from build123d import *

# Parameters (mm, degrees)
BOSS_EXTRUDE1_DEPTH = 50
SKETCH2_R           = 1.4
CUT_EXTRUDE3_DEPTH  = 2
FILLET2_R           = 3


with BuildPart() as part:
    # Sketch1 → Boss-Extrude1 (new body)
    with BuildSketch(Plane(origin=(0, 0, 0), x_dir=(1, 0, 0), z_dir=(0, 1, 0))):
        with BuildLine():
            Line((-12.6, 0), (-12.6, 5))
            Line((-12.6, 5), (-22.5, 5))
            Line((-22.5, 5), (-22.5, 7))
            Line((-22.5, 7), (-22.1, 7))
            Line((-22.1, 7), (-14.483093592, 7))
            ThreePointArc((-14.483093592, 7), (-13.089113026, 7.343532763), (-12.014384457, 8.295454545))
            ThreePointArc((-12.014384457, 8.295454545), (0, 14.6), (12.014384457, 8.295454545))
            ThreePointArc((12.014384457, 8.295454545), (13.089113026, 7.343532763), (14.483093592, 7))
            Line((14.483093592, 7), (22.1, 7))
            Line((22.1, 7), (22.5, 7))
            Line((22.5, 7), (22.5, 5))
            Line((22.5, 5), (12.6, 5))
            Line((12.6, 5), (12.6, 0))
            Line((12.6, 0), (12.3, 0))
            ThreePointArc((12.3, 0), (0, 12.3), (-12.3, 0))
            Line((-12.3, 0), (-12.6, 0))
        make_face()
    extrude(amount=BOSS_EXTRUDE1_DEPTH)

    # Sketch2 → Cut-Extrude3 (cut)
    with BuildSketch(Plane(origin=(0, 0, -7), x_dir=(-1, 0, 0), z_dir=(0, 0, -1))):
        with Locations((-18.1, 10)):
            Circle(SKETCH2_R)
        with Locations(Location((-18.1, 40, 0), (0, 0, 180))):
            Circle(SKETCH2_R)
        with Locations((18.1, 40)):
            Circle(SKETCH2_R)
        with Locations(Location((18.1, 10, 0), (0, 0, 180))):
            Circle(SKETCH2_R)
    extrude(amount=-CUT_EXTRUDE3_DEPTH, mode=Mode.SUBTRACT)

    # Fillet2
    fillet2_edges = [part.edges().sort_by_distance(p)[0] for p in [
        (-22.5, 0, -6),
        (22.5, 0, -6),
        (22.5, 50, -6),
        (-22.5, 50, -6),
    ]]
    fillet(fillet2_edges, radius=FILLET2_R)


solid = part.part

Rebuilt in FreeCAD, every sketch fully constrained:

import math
import FreeCAD as App
import Part
import Sketcher
Q = App.Units.Quantity


def edges_at(feature, points):
    """Names of the edges that pass closest to the given points."""
    edges = feature.Shape.Edges
    near = lambda p: min(range(len(edges)), key=lambda i: edges[i].distToShape(Part.Vertex(*p))[0])
    return sorted({f"Edge{near(p) + 1}" for p in points})

doc = App.newDocument("Part")
body = doc.addObject("PartDesign::Body", "Body")

# Sketch on XZ plane
sketch1 = body.newObject("Sketcher::SketchObject", "Sketch")
sketch1.AttachmentSupport = (doc.getObject("XZ_Plane"), [""])
sketch1.MapMode = "FlatFace"
sketch1.addGeometry(Part.LineSegment(App.Vector(-12.6, -5, 0), App.Vector(-12.6, 0, 0)), False)
sketch1.addGeometry(Part.LineSegment(App.Vector(-12.6, 0, 0), App.Vector(-12.3, 0, 0)), False)
sketch1.addGeometry(Part.ArcOfCircle(Part.Circle(App.Vector(0, 0, 0), App.Vector(0, 0, 1), 12.3), math.radians(180), math.radians(360)), False)
sketch1.addGeometry(Part.LineSegment(App.Vector(12.3, 0, 0), App.Vector(12.6, 0, 0)), False)
sketch1.addGeometry(Part.LineSegment(App.Vector(12.6, 0, 0), App.Vector(12.6, -5, 0)), False)
sketch1.addGeometry(Part.LineSegment(App.Vector(12.6, -5, 0), App.Vector(22.5, -5, 0)), False)
sketch1.addGeometry(Part.LineSegment(App.Vector(22.5, -5, 0), App.Vector(22.5, -7, 0)), False)
sketch1.addGeometry(Part.LineSegment(App.Vector(22.5, -7, 0), App.Vector(14.48, -7, 0)), False)
sketch1.addGeometry(Part.ArcOfCircle(Part.Circle(App.Vector(14.48, -10, 0), App.Vector(0, 0, 1), 3), math.radians(90), math.radians(145)), False)
sketch1.addGeometry(Part.ArcOfCircle(Part.Circle(App.Vector(0, 0, 0), App.Vector(0, 0, 1), 14.6), math.radians(-145), math.radians(-35)), False)
sketch1.addGeometry(Part.ArcOfCircle(Part.Circle(App.Vector(-14.48, -10, 0), App.Vector(0, 0, 1), 3), math.radians(35), math.radians(90)), False)
sketch1.addGeometry(Part.LineSegment(App.Vector(-14.48, -7, 0), App.Vector(-22.5, -7, 0)), False)
sketch1.addGeometry(Part.LineSegment(App.Vector(-22.5, -7, 0), App.Vector(-22.5, -5, 0)), False)
sketch1.addGeometry(Part.LineSegment(App.Vector(-22.5, -5, 0), App.Vector(-12.6, -5, 0)), False)
sketch1.addConstraint(Sketcher.Constraint("Coincident", 0, 2, 1, 1))
sketch1.addConstraint(Sketcher.Constraint("Coincident", 1, 2, 2, 1))
sketch1.addConstraint(Sketcher.Constraint("Coincident", 2, 2, 3, 1))
sketch1.addConstraint(Sketcher.Constraint("Coincident", 3, 2, 4, 1))
sketch1.addConstraint(Sketcher.Constraint("Coincident", 4, 2, 5, 1))
sketch1.addConstraint(Sketcher.Constraint("Coincident", 5, 2, 6, 1))
sketch1.addConstraint(Sketcher.Constraint("Coincident", 6, 2, 7, 1))
sketch1.addConstraint(Sketcher.Constraint("Tangent", 7, 2, 8, 1))
sketch1.addConstraint(Sketcher.Constraint("Tangent", 8, 2, 9, 2))
sketch1.addConstraint(Sketcher.Constraint("Tangent", 9, 1, 10, 1))
sketch1.addConstraint(Sketcher.Constraint("Tangent", 10, 2, 11, 1))
sketch1.addConstraint(Sketcher.Constraint("Coincident", 11, 2, 12, 1))
sketch1.addConstraint(Sketcher.Constraint("Coincident", 12, 2, 13, 1))
sketch1.addConstraint(Sketcher.Constraint("Coincident", 13, 2, 0, 1))
sketch1.addConstraint(Sketcher.Constraint("Vertical", 0))
sketch1.addConstraint(Sketcher.Constraint("Horizontal", 1))
sketch1.addConstraint(Sketcher.Constraint("Horizontal", 3))
sketch1.addConstraint(Sketcher.Constraint("Vertical", 4))
sketch1.addConstraint(Sketcher.Constraint("Horizontal", 5))
sketch1.addConstraint(Sketcher.Constraint("Vertical", 6))
sketch1.addConstraint(Sketcher.Constraint("Horizontal", 7))
sketch1.addConstraint(Sketcher.Constraint("Horizontal", 11))
sketch1.addConstraint(Sketcher.Constraint("Vertical", 12))
sketch1.addConstraint(Sketcher.Constraint("Horizontal", 13))
sketch1.addConstraint(Sketcher.Constraint("Coincident", 2, 3, -1, 1))
sketch1.addConstraint(Sketcher.Constraint("Coincident", 9, 3, -1, 1))
sketch1.addConstraint(Sketcher.Constraint("Equal", 8, 10))
sketch1.addConstraint(Sketcher.Constraint("Symmetric", 0, 2, 3, 2, -1, 1))
sketch1.addConstraint(Sketcher.Constraint("Symmetric", 6, 2, 11, 2, -2))
sketch1.addConstraint(Sketcher.Constraint("PointOnObject", 0, 2, -1))
sketch1.addConstraint(Sketcher.Constraint("Horizontal", 5, 2, 12, 2))
sketch1.addConstraint(Sketcher.Constraint("Radius", 8, Q("3 mm")))
sketch1.addConstraint(Sketcher.Constraint("Radius", 2, Q("12.3 mm")))
sketch1.addConstraint(Sketcher.Constraint("Radius", 9, Q("14.6 mm")))
sketch1.addConstraint(Sketcher.Constraint("DistanceY", 0, 1, 0, 2, Q("5 mm")))
sketch1.addConstraint(Sketcher.Constraint("DistanceY", 6, 2, 6, 1, Q("2 mm")))
sketch1.addConstraint(Sketcher.Constraint("DistanceX", 1, 1, 1, 2, Q("0.3 mm")))
sketch1.addConstraint(Sketcher.Constraint("DistanceX", 5, 1, 5, 2, Q("9.9 mm")))
pad1 = body.newObject("PartDesign::Pad", "Pad")
pad1.Profile = sketch1
pad1.Length = 50
pad1.Reversed = True

# Sketch on XY plane
sketch2 = body.newObject("Sketcher::SketchObject", "Sketch001")
sketch2.AttachmentSupport = (doc.getObject("XY_Plane"), [""])
sketch2.MapMode = "FlatFace"
sketch2.AttachmentOffset = App.Placement(App.Vector(0, 0, -7), App.Rotation())
sketch2.addGeometry(Part.Circle(App.Vector(18.1, 10, 0), App.Vector(0, 0, 1), 1.4), False)
sketch2.addGeometry(Part.Circle(App.Vector(18.1, 40, 0), App.Vector(0, 0, 1), 1.4), False)
sketch2.addGeometry(Part.Circle(App.Vector(-18.1, 40, 0), App.Vector(0, 0, 1), 1.4), False)
sketch2.addGeometry(Part.Circle(App.Vector(-18.1, 10, 0), App.Vector(0, 0, 1), 1.4), False)
sketch2.addConstraint(Sketcher.Constraint("Equal", 0, 1))
sketch2.addConstraint(Sketcher.Constraint("Equal", 1, 2))
sketch2.addConstraint(Sketcher.Constraint("Equal", 2, 3))
sketch2.addConstraint(Sketcher.Constraint("Symmetric", 1, 3, 2, 3, -2))
sketch2.addConstraint(Sketcher.Constraint("Symmetric", 0, 3, 3, 3, -2))
sketch2.addConstraint(Sketcher.Constraint("Vertical", 0, 3, 1, 3))
sketch2.addConstraint(Sketcher.Constraint("Diameter", 0, Q("2.8 mm")))
sketch2.addConstraint(Sketcher.Constraint("DistanceY", -1, 1, 0, 3, Q("10 mm")))
sketch2.addConstraint(Sketcher.Constraint("DistanceY", -1, 1, 1, 3, Q("40 mm")))
sketch2.addConstraint(Sketcher.Constraint("DistanceX", -1, 1, 0, 3, Q("18.1 mm")))
pocket1 = body.newObject("PartDesign::Pocket", "Pocket")
pocket1.Profile = sketch2
pocket1.Length = 2
pocket1.Reversed = True
doc.recompute()

fillet = body.newObject("PartDesign::Fillet", "Fillet")
fillet.Base = (pocket1, edges_at(pocket1, [
    (-22.5, 0, -6),
    (22.5, 0, -6),
    (22.5, 50, -6),
    (-22.5, 50, -6),
]))
fillet.Radius = 3

doc.recompute()
